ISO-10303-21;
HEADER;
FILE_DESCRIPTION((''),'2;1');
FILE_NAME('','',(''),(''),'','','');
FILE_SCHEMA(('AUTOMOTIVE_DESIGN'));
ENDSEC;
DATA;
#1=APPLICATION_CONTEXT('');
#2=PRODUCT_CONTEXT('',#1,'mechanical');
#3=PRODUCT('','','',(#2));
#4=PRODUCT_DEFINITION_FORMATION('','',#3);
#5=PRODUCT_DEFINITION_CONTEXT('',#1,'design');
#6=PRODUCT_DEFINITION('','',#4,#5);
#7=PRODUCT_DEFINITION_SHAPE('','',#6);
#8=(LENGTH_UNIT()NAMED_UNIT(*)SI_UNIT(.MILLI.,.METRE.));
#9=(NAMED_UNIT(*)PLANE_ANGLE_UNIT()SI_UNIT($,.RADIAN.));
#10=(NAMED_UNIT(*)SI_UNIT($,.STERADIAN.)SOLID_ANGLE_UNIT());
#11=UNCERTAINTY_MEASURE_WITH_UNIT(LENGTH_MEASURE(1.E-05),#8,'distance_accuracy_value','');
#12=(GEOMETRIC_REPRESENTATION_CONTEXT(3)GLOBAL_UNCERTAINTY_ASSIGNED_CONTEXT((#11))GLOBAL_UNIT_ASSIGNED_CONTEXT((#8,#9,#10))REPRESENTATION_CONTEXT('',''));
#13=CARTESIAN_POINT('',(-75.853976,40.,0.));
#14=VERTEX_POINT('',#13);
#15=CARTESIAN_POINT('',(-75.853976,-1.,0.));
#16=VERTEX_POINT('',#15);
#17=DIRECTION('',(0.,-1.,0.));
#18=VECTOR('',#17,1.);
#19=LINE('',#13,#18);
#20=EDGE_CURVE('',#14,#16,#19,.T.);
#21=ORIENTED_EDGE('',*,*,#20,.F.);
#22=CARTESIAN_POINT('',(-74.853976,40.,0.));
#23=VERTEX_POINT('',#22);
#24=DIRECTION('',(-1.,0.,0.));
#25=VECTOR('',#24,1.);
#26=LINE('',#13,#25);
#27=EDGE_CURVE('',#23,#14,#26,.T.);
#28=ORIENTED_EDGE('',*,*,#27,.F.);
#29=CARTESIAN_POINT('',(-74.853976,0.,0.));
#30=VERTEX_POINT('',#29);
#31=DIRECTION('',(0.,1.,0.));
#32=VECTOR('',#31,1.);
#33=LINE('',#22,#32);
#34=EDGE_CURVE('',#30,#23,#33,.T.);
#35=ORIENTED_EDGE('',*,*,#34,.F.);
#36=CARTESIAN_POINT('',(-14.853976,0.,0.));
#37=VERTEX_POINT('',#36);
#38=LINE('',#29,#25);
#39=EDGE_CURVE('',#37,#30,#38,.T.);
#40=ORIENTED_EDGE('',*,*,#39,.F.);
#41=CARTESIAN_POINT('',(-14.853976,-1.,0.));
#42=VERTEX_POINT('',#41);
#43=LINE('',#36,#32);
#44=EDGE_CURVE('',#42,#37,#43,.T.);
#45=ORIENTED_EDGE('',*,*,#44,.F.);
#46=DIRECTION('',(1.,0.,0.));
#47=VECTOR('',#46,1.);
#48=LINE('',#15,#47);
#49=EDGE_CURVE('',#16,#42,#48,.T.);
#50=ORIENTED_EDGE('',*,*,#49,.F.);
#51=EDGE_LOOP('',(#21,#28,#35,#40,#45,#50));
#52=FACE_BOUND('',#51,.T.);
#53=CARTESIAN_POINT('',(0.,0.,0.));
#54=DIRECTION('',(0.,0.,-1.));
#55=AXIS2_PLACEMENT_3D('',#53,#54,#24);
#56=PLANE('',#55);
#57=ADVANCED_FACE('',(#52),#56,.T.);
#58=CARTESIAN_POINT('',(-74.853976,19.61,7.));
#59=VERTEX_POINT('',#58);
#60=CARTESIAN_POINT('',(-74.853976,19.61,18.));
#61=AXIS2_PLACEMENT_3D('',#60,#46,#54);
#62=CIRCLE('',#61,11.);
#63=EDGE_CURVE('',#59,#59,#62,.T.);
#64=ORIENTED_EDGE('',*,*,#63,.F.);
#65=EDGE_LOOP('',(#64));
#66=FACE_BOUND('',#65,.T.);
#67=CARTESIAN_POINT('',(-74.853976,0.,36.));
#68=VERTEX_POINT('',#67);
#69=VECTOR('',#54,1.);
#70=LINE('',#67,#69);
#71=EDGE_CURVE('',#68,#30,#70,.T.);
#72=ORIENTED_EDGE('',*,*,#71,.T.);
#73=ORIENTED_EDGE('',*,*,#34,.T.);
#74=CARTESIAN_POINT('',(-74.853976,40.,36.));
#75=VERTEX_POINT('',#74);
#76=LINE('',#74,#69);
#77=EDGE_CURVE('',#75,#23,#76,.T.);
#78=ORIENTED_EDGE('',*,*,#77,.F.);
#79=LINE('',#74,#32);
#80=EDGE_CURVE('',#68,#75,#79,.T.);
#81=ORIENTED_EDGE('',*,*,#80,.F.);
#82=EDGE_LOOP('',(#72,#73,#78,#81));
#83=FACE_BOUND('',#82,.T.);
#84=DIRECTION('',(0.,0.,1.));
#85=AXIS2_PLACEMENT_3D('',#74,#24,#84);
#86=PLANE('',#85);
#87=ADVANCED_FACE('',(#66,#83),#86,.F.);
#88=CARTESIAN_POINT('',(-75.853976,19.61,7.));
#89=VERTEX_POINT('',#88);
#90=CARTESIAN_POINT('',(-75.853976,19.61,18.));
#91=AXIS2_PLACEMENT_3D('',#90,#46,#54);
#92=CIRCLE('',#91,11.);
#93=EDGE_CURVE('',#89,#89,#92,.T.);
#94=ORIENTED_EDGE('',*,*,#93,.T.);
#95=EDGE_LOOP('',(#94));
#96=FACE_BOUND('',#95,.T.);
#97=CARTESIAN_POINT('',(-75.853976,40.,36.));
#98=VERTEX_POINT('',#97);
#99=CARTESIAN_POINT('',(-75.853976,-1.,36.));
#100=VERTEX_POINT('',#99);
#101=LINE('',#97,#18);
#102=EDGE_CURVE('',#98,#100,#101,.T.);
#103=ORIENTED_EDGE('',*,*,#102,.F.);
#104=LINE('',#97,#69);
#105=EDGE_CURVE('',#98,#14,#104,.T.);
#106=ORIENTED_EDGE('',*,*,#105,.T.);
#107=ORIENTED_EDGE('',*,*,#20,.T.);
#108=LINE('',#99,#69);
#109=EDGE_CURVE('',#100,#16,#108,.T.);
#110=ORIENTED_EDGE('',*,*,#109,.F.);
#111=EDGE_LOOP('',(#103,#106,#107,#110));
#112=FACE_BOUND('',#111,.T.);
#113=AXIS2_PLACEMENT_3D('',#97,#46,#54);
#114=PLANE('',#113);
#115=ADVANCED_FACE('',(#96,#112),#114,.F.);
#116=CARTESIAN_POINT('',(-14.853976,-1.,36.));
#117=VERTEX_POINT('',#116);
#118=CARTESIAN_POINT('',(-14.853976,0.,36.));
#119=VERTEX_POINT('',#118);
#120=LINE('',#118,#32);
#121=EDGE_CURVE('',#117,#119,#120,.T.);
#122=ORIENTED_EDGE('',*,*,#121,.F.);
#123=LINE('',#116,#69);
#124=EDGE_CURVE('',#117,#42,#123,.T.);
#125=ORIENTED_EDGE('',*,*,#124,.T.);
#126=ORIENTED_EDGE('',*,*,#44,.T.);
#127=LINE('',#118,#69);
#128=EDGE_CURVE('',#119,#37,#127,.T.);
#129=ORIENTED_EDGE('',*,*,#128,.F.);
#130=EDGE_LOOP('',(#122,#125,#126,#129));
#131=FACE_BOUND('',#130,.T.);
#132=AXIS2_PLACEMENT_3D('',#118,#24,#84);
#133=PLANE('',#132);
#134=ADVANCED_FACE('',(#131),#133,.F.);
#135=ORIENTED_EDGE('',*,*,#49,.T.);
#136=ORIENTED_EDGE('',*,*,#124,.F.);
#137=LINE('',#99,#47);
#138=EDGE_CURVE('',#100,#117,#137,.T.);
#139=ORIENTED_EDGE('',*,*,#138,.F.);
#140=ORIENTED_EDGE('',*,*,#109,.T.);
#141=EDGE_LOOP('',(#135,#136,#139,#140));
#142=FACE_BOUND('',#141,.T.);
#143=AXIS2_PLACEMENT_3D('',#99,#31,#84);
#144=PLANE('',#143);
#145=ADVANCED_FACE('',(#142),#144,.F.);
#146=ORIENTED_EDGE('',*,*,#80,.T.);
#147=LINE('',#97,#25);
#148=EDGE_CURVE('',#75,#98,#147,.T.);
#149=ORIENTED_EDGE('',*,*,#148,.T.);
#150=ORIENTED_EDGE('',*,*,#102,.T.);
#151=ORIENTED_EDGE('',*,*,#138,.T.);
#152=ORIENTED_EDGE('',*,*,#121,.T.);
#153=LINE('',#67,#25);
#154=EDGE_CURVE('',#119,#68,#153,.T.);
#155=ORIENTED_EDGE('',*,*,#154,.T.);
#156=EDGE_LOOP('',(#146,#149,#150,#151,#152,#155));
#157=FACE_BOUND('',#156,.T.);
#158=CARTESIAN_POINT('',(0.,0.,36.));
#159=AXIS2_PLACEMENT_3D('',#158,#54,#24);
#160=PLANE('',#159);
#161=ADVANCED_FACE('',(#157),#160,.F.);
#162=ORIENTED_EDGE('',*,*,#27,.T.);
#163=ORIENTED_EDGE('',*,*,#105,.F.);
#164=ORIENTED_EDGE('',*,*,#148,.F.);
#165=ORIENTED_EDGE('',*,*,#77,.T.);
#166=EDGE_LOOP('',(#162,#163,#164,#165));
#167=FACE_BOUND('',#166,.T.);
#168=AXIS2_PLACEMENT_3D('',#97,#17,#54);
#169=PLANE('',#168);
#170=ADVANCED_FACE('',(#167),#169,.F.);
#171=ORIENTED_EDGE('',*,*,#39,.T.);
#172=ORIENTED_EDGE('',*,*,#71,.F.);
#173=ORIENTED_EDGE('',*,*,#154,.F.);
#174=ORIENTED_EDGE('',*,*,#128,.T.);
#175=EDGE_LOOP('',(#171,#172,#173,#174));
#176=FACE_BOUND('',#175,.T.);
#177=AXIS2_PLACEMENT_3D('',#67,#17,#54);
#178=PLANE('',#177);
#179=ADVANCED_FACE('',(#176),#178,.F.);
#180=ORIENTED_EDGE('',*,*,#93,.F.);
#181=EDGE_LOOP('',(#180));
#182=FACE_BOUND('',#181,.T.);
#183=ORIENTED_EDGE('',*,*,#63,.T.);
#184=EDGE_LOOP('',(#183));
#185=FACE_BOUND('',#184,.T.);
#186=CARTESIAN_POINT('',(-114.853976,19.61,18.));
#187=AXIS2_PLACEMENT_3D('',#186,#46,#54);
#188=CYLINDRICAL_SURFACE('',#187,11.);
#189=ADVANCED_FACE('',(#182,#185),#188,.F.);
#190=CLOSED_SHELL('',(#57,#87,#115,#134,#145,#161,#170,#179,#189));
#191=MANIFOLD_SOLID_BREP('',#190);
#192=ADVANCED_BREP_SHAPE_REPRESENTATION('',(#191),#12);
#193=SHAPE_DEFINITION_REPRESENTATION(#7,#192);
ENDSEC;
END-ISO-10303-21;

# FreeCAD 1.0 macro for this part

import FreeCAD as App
import Part
import Sketcher
from FreeCAD import Vector

doc = App.newDocument("Part")
params = doc.addObject("Spreadsheet::Sheet", "Params")
for row, (alias, value) in enumerate([
    ("sketch1_width", "1 mm"),
    ("sketch1_width2", "61 mm"),
    ("sketch1_height", "40 mm"),
    ("pad1_length", "36 mm"),
    ("sketch2_diameter", "22 mm"),
    ("pocket1_length", "40 mm"),
], start=1):
    params.set(f"A{row}", alias)
    params.set(f"B{row}", "=" + value)
    params.setAlias(f"B{row}", alias)

body = doc.addObject("PartDesign::Body", "Body")

# Sketch on XY plane
sketch1 = body.newObject("Sketcher::SketchObject", "Sketch")
sketch1.AttachmentSupport = (doc.getObject("XY_Plane"), [""])
sketch1.MapMode = "FlatFace"
sketch1.addGeometry([
    Part.LineSegment(Vector(-74.853976, 0, 0), Vector(-74.853976, 40, 0)),  # 0
    Part.LineSegment(Vector(-74.853976, 40, 0), Vector(-75.853976, 40, 0)),  # 1
    Part.LineSegment(Vector(-75.853976, 40, 0), Vector(-75.853976, -1, 0)),  # 2
    Part.LineSegment(Vector(-75.853976, -1, 0), Vector(-14.853976, -1, 0)),  # 3
    Part.LineSegment(Vector(-14.853976, -1, 0), Vector(-14.853976, 0, 0)),  # 4
    Part.LineSegment(Vector(-14.853976, 0, 0), Vector(-74.853976, 0, 0)),  # 5
], False)
sketch1.addConstraint([
    Sketcher.Constraint("Coincident", 0, 2, 1, 1),
    Sketcher.Constraint("Coincident", 1, 2, 2, 1),
    Sketcher.Constraint("Coincident", 2, 2, 3, 1),
    Sketcher.Constraint("Coincident", 3, 2, 4, 1),
    Sketcher.Constraint("Coincident", 4, 2, 5, 1),
    Sketcher.Constraint("Coincident", 5, 2, 0, 1),
    Sketcher.Constraint("Vertical", 0),
    Sketcher.Constraint("Horizontal", 1),
    Sketcher.Constraint("Vertical", 2),
    Sketcher.Constraint("Horizontal", 3),
    Sketcher.Constraint("Vertical", 4),
    Sketcher.Constraint("Horizontal", 5),
    Sketcher.Constraint("PointOnObject", 4, 2, -1),
    Sketcher.Constraint("Equal", 1, 4),
    Sketcher.Constraint("DistanceX", 1, 2, 1, 1, 1.0),
    Sketcher.Constraint("DistanceX", 3, 1, 3, 2, 61.0),
    Sketcher.Constraint("DistanceY", 0, 1, 0, 2, 40.0),
    Sketcher.Constraint("DistanceX", 0, 2, -1, 1, 74.853976),
])
sketch1.setExpression("Constraints[14]", "Params.sketch1_width")
sketch1.setExpression("Constraints[15]", "Params.sketch1_width2")
sketch1.setExpression("Constraints[16]", "Params.sketch1_height")
pad1 = body.newObject("PartDesign::Pad", "Pad")
pad1.Profile = sketch1
pad1.setExpression("Length", "Params.pad1_length")

# Sketch on YZ plane
sketch2 = body.newObject("Sketcher::SketchObject", "Sketch001")
sketch2.AttachmentSupport = (doc.getObject("YZ_Plane"), [""])
sketch2.MapMode = "FlatFace"
sketch2.AttachmentOffset = App.Placement(Vector(0, 0, -74.853976), App.Rotation())
sketch2.addGeometry(Part.Circle(Vector(19.61, 18, 0), Vector(0, 0, 1), 11), False)
sketch2.addConstraint([
    Sketcher.Constraint("Diameter", 0, 22.0),
    Sketcher.Constraint("DistanceY", -1, 1, 0, 3, 18.0),
    Sketcher.Constraint("DistanceX", -1, 1, 0, 3, 19.61),
])
sketch2.setExpression("Constraints[0]", "Params.sketch2_diameter")
pocket1 = body.newObject("PartDesign::Pocket", "Pocket")
pocket1.Profile = sketch2
pocket1.setExpression("Length", "Params.pocket1_length")

doc.recompute()
